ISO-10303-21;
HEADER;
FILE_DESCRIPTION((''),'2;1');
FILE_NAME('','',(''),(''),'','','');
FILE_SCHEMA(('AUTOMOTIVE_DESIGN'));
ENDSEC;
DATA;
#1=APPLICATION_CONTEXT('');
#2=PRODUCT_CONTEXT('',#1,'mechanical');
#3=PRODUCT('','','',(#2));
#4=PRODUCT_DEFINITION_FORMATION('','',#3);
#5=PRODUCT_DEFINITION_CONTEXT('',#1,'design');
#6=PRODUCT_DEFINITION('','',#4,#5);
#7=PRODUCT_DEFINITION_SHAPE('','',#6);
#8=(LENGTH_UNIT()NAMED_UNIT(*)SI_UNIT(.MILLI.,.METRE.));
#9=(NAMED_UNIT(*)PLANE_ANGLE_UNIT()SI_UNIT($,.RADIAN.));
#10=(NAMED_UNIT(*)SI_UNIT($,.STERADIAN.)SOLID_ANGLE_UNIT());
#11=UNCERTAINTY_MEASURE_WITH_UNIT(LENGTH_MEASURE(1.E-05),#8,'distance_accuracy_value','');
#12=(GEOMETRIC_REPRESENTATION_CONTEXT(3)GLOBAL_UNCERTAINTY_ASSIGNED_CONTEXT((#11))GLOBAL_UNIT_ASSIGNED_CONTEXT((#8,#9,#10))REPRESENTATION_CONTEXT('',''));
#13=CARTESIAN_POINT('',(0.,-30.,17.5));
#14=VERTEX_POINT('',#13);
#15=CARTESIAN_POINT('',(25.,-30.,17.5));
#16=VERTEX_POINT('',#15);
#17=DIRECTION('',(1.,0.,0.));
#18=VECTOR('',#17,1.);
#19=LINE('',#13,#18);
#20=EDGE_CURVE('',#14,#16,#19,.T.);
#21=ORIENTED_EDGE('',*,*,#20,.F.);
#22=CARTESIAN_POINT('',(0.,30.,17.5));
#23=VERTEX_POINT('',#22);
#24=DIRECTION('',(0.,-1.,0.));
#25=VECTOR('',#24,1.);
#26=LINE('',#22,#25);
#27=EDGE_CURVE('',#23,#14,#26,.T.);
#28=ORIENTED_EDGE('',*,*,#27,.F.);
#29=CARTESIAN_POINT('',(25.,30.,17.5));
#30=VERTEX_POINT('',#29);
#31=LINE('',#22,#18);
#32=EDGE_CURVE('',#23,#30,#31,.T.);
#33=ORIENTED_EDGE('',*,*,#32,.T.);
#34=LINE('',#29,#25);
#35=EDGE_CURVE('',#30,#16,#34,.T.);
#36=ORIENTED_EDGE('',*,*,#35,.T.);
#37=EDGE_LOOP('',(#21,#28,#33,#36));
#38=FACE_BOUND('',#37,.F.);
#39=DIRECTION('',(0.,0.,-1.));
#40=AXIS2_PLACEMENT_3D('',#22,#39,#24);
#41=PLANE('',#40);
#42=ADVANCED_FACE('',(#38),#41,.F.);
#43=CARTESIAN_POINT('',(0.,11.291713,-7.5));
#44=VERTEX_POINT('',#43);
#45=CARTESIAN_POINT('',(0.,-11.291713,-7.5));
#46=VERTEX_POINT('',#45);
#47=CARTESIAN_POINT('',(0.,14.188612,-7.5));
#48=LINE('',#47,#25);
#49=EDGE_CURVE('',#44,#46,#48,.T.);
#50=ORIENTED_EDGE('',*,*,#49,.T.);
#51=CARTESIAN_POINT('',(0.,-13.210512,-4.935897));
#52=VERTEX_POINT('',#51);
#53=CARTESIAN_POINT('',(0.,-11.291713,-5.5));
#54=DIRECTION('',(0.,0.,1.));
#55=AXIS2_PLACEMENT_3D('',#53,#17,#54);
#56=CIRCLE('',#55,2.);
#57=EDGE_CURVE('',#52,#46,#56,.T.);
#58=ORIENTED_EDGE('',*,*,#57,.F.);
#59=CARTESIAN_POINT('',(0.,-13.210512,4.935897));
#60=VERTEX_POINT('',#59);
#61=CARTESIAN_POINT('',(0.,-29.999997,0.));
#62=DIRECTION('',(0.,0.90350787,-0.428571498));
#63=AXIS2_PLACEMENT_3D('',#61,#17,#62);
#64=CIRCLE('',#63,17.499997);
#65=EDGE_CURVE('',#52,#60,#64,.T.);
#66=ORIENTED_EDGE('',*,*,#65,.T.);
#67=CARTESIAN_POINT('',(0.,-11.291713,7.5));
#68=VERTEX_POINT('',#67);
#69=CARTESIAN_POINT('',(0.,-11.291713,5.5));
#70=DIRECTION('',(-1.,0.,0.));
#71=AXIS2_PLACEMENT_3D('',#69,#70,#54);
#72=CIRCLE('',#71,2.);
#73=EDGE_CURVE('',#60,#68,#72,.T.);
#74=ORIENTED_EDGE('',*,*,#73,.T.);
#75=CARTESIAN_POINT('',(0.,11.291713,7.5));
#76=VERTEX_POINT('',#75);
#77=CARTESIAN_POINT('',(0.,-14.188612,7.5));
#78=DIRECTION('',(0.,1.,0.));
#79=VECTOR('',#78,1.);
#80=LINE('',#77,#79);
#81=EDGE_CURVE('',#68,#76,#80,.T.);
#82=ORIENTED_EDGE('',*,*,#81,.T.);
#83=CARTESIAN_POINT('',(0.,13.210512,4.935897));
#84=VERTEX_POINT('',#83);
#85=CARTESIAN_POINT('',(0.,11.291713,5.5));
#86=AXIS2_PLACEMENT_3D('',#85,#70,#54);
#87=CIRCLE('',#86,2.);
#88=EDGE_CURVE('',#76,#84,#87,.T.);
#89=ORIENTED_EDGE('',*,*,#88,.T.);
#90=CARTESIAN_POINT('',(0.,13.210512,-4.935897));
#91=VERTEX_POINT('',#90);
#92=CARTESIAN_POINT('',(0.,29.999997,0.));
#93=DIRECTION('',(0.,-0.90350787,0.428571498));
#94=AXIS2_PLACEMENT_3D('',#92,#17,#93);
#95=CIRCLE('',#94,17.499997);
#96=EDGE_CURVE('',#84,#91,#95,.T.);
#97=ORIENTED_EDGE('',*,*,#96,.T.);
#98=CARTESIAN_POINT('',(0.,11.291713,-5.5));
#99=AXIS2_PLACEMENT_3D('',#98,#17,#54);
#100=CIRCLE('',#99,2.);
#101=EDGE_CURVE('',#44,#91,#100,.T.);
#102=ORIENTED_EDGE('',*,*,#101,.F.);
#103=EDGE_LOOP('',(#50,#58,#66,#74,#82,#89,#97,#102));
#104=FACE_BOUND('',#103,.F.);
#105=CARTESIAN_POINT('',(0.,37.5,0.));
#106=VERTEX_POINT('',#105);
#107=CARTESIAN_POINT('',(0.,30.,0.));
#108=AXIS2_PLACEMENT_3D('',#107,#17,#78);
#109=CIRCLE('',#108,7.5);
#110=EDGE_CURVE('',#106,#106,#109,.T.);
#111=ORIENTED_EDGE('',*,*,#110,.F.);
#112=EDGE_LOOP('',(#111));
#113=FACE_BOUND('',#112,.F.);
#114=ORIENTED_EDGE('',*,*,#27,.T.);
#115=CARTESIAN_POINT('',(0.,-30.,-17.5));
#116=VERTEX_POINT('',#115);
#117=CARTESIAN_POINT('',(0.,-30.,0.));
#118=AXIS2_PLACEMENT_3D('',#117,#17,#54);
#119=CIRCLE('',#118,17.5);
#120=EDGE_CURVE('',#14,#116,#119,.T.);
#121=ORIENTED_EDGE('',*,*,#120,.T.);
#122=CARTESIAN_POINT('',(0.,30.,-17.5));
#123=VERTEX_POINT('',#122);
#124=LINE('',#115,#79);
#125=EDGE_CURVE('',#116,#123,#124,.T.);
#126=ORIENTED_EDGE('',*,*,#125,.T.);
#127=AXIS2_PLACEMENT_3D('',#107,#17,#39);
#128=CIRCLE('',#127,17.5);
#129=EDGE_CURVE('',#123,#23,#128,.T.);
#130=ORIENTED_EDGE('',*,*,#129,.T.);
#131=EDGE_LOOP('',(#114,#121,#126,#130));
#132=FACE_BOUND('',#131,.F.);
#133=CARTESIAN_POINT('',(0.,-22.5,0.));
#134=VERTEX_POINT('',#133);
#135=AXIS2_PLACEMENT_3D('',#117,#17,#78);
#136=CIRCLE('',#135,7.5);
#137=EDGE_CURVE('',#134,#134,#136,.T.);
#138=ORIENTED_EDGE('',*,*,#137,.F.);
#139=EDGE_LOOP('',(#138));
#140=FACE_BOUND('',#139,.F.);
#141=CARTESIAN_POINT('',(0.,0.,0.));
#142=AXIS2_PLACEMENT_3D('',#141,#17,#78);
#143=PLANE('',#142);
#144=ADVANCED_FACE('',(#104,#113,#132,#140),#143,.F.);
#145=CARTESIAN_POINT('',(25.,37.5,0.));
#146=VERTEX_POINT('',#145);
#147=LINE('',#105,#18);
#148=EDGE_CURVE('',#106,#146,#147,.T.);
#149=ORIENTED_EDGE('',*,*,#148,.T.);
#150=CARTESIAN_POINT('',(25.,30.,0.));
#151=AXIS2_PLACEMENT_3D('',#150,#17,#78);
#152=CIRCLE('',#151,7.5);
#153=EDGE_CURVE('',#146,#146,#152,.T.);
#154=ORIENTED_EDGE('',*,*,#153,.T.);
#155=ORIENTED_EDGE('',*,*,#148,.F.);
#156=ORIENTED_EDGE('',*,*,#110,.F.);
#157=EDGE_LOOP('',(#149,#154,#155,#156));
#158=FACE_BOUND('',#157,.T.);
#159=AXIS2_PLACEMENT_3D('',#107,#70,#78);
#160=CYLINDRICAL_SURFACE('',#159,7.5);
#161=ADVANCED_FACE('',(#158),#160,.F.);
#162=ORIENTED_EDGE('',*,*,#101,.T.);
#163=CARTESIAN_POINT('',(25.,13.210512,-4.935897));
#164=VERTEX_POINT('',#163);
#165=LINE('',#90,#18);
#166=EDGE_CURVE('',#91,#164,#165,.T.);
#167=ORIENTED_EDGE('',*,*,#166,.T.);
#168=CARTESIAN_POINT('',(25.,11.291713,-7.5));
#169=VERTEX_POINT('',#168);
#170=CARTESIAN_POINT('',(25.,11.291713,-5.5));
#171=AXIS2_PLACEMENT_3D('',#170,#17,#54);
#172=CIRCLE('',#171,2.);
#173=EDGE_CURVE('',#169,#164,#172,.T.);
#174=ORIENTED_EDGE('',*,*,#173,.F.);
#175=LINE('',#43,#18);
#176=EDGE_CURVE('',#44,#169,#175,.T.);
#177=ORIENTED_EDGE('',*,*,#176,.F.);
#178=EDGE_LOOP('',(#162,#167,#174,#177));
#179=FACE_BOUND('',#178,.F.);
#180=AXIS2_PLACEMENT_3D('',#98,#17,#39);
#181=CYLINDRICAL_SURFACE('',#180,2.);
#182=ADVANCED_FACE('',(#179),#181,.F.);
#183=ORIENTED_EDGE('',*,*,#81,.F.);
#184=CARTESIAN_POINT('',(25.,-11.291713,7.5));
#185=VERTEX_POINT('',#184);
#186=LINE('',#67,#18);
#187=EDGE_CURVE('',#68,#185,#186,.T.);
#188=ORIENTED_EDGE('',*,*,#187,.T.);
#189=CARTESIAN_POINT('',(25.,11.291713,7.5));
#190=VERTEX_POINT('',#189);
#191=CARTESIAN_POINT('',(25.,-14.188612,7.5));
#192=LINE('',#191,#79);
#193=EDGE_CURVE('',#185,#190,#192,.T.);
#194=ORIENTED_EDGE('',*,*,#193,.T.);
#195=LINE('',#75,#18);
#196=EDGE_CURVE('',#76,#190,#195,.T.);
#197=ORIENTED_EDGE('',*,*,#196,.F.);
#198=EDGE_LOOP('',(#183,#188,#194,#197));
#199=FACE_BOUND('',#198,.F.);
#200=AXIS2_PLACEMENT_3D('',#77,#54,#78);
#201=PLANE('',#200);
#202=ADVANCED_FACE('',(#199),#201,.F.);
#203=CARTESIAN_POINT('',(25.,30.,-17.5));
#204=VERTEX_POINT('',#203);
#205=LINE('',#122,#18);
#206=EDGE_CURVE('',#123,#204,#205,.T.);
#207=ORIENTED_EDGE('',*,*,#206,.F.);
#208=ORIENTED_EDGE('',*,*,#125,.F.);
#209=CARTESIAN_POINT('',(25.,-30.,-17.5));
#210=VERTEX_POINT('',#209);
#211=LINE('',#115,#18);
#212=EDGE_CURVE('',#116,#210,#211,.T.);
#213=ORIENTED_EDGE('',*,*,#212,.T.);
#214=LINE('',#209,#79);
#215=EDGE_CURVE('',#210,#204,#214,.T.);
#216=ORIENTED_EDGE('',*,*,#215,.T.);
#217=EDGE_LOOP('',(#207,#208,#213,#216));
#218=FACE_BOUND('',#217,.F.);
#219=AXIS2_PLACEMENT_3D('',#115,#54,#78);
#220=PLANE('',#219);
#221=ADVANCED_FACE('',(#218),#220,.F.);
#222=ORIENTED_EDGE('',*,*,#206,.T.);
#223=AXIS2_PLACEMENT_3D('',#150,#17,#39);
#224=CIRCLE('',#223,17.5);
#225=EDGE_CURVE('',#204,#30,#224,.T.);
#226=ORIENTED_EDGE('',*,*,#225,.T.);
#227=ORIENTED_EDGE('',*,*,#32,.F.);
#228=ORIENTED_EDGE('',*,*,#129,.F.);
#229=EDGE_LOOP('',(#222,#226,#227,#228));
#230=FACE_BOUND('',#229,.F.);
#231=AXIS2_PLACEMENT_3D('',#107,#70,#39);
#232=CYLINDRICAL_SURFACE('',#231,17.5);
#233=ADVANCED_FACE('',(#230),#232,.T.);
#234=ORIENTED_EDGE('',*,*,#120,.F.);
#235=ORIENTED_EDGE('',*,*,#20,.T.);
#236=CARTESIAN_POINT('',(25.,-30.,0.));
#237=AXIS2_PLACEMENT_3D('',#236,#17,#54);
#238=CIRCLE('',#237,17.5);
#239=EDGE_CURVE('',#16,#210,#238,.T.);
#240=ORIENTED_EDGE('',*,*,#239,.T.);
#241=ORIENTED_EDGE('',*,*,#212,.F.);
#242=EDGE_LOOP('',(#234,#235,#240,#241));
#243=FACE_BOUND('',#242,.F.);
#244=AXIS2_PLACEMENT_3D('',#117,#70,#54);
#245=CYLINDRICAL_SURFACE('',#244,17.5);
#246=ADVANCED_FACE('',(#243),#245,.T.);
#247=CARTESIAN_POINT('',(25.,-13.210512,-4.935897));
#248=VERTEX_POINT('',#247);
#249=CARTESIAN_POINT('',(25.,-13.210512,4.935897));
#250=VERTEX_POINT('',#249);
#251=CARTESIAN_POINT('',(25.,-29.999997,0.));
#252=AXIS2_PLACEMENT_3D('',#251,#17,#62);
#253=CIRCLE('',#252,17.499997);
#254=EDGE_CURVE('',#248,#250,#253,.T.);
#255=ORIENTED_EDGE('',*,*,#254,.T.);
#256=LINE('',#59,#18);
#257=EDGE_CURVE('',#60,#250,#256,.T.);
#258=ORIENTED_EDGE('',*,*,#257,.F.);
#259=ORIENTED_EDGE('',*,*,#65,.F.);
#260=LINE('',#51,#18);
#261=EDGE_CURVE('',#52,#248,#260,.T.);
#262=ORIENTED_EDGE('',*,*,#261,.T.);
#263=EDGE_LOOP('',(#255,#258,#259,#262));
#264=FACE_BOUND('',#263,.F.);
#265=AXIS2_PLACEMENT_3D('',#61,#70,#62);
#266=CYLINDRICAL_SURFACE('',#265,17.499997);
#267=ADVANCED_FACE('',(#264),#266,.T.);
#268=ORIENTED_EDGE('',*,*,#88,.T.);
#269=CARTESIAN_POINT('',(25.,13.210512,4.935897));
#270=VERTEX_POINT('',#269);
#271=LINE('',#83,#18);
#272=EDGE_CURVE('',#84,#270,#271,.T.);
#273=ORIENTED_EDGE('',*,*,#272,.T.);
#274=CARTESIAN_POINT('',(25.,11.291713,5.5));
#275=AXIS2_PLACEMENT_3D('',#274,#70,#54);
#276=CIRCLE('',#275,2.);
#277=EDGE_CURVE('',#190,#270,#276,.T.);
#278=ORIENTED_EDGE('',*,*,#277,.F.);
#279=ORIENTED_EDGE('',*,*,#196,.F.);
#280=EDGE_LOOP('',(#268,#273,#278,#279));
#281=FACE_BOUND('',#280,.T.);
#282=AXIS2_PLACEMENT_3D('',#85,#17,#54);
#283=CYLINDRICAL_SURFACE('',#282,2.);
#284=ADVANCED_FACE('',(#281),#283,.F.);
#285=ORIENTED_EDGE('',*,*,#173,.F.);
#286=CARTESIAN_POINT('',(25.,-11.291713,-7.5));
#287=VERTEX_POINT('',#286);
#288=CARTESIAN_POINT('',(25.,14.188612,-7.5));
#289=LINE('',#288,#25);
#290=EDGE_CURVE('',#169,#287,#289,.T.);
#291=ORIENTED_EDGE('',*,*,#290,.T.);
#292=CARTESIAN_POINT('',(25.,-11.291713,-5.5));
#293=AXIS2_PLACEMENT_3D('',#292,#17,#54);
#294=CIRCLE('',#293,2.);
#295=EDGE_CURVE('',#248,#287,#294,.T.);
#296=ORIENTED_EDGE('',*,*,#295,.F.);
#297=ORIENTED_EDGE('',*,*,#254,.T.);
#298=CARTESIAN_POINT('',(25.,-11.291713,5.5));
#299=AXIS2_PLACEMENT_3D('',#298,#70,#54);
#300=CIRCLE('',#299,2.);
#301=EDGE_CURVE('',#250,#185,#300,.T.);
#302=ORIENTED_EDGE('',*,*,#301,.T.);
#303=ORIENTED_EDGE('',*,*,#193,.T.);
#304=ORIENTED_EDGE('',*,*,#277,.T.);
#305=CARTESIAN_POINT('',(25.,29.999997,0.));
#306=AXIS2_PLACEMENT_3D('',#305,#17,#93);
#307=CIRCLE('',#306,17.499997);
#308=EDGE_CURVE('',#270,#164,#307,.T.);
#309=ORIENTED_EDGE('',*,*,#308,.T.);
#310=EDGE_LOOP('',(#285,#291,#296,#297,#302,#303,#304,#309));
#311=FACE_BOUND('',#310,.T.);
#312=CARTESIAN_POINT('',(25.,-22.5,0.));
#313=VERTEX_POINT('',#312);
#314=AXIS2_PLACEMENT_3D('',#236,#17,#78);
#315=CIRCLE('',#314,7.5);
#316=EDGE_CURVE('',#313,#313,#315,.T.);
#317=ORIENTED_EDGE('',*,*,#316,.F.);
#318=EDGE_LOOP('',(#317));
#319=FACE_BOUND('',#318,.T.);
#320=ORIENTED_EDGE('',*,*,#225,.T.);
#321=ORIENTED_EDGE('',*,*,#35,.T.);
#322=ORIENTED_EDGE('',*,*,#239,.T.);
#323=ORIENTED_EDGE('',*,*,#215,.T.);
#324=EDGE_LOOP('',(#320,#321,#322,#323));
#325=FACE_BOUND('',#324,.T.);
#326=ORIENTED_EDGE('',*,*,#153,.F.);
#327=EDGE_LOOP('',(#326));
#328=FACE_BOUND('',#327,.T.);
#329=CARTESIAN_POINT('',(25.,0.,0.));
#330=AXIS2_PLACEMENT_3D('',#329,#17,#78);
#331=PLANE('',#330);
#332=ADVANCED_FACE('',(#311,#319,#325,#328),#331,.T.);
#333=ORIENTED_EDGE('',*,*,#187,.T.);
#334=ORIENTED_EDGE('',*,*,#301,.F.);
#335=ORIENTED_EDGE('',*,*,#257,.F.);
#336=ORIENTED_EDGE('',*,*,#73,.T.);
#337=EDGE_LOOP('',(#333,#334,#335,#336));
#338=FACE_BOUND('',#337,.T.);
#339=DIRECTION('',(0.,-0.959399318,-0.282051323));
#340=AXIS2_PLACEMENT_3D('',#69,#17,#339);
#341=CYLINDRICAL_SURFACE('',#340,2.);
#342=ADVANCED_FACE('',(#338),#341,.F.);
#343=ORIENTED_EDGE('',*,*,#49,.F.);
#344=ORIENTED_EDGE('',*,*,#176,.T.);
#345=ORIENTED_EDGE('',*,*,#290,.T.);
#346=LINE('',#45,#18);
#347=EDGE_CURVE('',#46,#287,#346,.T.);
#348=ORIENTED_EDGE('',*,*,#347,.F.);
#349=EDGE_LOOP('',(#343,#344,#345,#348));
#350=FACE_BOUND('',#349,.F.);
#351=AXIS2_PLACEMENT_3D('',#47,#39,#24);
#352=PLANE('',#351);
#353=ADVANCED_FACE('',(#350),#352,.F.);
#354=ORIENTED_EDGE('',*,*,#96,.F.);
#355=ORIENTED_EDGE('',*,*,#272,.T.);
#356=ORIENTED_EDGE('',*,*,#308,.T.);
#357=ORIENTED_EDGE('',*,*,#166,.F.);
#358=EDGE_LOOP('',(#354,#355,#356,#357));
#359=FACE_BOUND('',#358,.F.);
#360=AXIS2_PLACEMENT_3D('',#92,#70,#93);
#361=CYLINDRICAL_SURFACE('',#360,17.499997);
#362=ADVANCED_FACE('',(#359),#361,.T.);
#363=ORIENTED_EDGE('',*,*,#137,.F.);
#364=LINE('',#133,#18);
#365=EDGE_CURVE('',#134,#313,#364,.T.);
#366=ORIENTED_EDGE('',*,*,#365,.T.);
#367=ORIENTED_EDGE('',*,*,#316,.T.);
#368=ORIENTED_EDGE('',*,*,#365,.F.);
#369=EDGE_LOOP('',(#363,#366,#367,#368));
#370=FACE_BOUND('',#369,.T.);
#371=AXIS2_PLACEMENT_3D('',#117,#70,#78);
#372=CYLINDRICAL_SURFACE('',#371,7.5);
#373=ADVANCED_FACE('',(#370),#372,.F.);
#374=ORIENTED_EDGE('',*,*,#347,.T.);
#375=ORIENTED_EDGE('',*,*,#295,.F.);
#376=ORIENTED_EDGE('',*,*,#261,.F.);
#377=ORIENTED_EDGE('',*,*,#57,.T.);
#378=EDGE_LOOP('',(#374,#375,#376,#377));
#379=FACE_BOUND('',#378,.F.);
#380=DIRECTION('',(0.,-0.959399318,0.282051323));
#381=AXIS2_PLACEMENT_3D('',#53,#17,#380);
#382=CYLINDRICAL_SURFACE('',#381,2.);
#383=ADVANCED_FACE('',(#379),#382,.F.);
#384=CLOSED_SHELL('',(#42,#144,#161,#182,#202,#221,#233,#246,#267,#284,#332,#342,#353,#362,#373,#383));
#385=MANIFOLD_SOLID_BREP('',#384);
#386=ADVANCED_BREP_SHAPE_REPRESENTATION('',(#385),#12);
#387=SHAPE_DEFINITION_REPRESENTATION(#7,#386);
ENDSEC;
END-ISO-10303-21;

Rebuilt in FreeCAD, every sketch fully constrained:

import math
import FreeCAD as App
import Part
import Sketcher
from FreeCAD import Vector


def edges_at(feature, points):
    """Names of the edges that pass closest to the given points."""
    edges = feature.Shape.Edges
    near = lambda p: min(range(len(edges)), key=lambda i: edges[i].distToShape(Part.Vertex(*p))[0])
    return sorted({f"Edge{near(p) + 1}" for p in points})

doc = App.newDocument("Part")
body = doc.addObject("PartDesign::Body", "Body")

# Sketch on YZ plane
sketch1 = body.newObject("Sketcher::SketchObject", "Sketch")
sketch1.AttachmentSupport = (doc.getObject("YZ_Plane"), [""])
sketch1.MapMode = "FlatFace"
sketch1.addGeometry([
    Part.LineSegment(Vector(30, 18, 0), Vector(-30, 18, 0)),  # 0
    Part.ArcOfCircle(Part.Circle(Vector(-30, 0, 0), Vector(0, 0, 1), 18), math.radians(90), math.radians(270)),  # 1
    Part.LineSegment(Vector(-30, -18, 0), Vector(30, -18, 0)),  # 2
    Part.ArcOfCircle(Part.Circle(Vector(30, 0, 0), Vector(0, 0, 1), 18), math.radians(-90), math.radians(90)),  # 3
    Part.Circle(Vector(-30, 0, 0), Vector(0, 0, 1), 8),  # 4
    Part.ArcOfCircle(Part.Circle(Vector(-30, 0, 0), Vector(0, 0, 1), 17), math.radians(-25), math.radians(25)),  # 5
    Part.LineSegment(Vector(-14, 8, 0), Vector(14, 8, 0)),  # 6
    Part.ArcOfCircle(Part.Circle(Vector(30, 0, 0), Vector(0, 0, 1), 17), math.radians(155), math.radians(205)),  # 7
    Part.LineSegment(Vector(14, -8, 0), Vector(-14, -8, 0)),  # 8
    Part.Circle(Vector(30, 0, 0), Vector(0, 0, 1), 8),  # 9
], False)
sketch1.addConstraint([
    Sketcher.Constraint("Tangent", 0, 2, 1, 1),
    Sketcher.Constraint("Tangent", 1, 2, 2, 1),
    Sketcher.Constraint("Tangent", 2, 2, 3, 1),
    Sketcher.Constraint("Tangent", 3, 2, 0, 1),
    Sketcher.Constraint("Coincident", 5, 2, 6, 1),
    Sketcher.Constraint("Coincident", 6, 2, 7, 1),
    Sketcher.Constraint("Coincident", 7, 2, 8, 1),
    Sketcher.Constraint("Coincident", 8, 2, 5, 1),
    Sketcher.Constraint("Horizontal", 0),
    Sketcher.Constraint("Horizontal", 2),
    Sketcher.Constraint("Horizontal", 6),
    Sketcher.Constraint("Horizontal", 8),
    Sketcher.Constraint("Coincident", 4, 3, 1, 3),
    Sketcher.Constraint("Coincident", 5, 3, 1, 3),
    Sketcher.Constraint("Coincident", 7, 3, 3, 3),
    Sketcher.Constraint("Coincident", 9, 3, 3, 3),
    Sketcher.Constraint("Equal", 5, 7),
    Sketcher.Constraint("Equal", 4, 9),
    Sketcher.Constraint("Symmetric", 1, 3, 3, 3, -1, 1),
    Sketcher.Constraint("Vertical", 6, 2, 7, 2),
    Sketcher.Constraint("Diameter", 4, 15.0),
    Sketcher.Constraint("Radius", 1, 17.5),
    Sketcher.Constraint("DistanceX", 0, 2, 0, 1, 60.0),
    Sketcher.Constraint("DistanceY", 5, 2, 0, 2, 10.0),
    Sketcher.Constraint("Radius", 5, 17.499997),
])
pad1 = body.newObject("PartDesign::Pad", "Pad")
pad1.Profile = sketch1
pad1.Length = 25
doc.recompute()

fillet = body.newObject("PartDesign::Fillet", "Fillet")
fillet.Base = (pad1, edges_at(pad1, [
    (12.5, -14.189, 7.5),
    (12.5, -14.189, -7.5),
    (12.5, 14.189, -7.5),
    (12.5, 14.189, 7.5),
]))
fillet.Radius = 2

doc.recompute()
